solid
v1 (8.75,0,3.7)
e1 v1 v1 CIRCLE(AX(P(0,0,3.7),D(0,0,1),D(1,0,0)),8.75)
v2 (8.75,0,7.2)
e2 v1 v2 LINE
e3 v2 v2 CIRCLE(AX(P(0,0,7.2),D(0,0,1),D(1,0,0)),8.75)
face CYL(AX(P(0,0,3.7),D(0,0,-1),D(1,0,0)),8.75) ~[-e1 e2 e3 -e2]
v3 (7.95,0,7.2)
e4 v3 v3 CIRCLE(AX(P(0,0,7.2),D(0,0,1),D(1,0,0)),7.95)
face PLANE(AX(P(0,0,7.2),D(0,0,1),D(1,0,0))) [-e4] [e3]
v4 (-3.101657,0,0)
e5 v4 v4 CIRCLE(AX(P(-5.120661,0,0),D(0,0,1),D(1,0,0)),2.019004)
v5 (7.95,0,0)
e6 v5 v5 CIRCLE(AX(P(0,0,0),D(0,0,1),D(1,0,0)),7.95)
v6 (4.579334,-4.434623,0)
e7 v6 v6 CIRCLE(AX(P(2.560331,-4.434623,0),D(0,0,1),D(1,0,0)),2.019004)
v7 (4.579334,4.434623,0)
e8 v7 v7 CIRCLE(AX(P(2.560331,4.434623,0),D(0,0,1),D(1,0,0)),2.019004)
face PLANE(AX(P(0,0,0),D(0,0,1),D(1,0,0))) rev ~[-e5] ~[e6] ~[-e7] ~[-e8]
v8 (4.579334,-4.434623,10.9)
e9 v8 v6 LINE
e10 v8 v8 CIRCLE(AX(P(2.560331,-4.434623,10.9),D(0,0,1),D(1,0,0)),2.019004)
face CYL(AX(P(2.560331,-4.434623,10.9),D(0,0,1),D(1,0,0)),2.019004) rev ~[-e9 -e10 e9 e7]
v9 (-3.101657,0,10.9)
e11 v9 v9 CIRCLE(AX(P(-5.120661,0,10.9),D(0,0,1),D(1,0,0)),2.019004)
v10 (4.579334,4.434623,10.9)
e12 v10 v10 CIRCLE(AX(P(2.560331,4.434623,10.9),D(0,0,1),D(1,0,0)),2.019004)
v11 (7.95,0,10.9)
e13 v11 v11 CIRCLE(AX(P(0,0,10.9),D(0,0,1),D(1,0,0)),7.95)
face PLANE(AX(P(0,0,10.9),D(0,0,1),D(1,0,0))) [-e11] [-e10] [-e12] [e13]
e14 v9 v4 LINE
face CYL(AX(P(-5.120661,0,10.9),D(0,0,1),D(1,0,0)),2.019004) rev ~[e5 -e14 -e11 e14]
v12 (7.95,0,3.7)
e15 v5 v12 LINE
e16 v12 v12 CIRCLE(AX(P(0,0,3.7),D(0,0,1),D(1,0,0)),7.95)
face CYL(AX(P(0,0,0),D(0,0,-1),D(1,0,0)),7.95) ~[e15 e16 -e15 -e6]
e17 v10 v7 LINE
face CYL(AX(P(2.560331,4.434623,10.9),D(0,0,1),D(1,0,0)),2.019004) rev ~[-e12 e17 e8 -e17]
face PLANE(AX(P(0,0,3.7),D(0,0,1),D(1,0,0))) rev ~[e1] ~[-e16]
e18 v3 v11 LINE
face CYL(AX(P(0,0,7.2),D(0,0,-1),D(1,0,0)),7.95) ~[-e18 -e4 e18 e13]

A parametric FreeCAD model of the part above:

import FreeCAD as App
import Part
import Sketcher
Q = App.Units.Quantity

doc = App.newDocument("Part")
body = doc.addObject("PartDesign::Body", "Body")

# Sketch on XY plane
sketch1 = body.newObject("Sketcher::SketchObject", "Sketch")
sketch1.AttachmentSupport = (doc.getObject("XY_Plane"), [""])
sketch1.MapMode = "FlatFace"
sketch1.addGeometry(Part.Circle(App.Vector(0, 0, 0), App.Vector(0, 0, 1), 8), False)
sketch1.addConstraint([
    Sketcher.Constraint("Coincident", 0, 3, -1, 1),
    Sketcher.Constraint("Diameter", 0, Q("15.9 mm")),
])
pad1 = body.newObject("PartDesign::Pad", "Pad")
pad1.Profile = sketch1
pad1.Length = 3.7

# Sketch on XY plane
sketch2 = body.newObject("Sketcher::SketchObject", "Sketch001")
sketch2.AttachmentSupport = (doc.getObject("XY_Plane"), [""])
sketch2.MapMode = "FlatFace"
sketch2.AttachmentOffset = App.Placement(App.Vector(0, 0, 3.7), App.Rotation())
sketch2.addGeometry(Part.Circle(App.Vector(0, 0, 0), App.Vector(0, 0, 1), 9), False)
sketch2.addConstraint([
    Sketcher.Constraint("Coincident", 0, 3, -1, 1),
    Sketcher.Constraint("Diameter", 0, Q("17.5 mm")),
])
pad2 = body.newObject("PartDesign::Pad", "Pad001")
pad2.Profile = sketch2
pad2.Length = 3.5

# Sketch on XY plane
sketch3 = body.newObject("Sketcher::SketchObject", "Sketch002")
sketch3.AttachmentSupport = (doc.getObject("XY_Plane"), [""])
sketch3.MapMode = "FlatFace"
sketch3.AttachmentOffset = App.Placement(App.Vector(0, 0, 7.2), App.Rotation())
sketch3.addGeometry(Part.Circle(App.Vector(0, 0, 0), App.Vector(0, 0, 1), 8), False)
sketch3.addConstraint([
    Sketcher.Constraint("Coincident", 0, 3, -1, 1),
    Sketcher.Constraint("Diameter", 0, Q("15.9 mm")),
])
pad3 = body.newObject("PartDesign::Pad", "Pad002")
pad3.Profile = sketch3
pad3.Length = 3.7

# Sketch on XY plane
sketch4 = body.newObject("Sketcher::SketchObject", "Sketch003")
sketch4.AttachmentSupport = (doc.getObject("XY_Plane"), [""])
sketch4.MapMode = "FlatFace"
sketch4.AttachmentOffset = App.Placement(App.Vector(0, 0, 10.9), App.Rotation())
sketch4.addGeometry([
    Part.Circle(App.Vector(-5.1, 0, 0), App.Vector(0, 0, 1), 2),
    Part.Circle(App.Vector(2.6, -4.4, 0), App.Vector(0, 0, 1), 2),
    Part.Circle(App.Vector(2.6, 4.4, 0), App.Vector(0, 0, 1), 2),
], False)
sketch4.addConstraint([
    Sketcher.Constraint("Equal", 0, 1),
    Sketcher.Constraint("Equal", 1, 2),
    Sketcher.Constraint("Symmetric", 1, 3, 2, 3, -1),
    Sketcher.Constraint("PointOnObject", 0, 3, -1),
    Sketcher.Constraint("Diameter", 0, Q("4.038007 mm")),
    Sketcher.Constraint("DistanceX", 0, 3, -1, 1, Q("5.120661 mm")),
    Sketcher.Constraint("DistanceX", -1, 1, 1, 3, Q("2.560331 mm")),
    Sketcher.Constraint("DistanceY", 1, 3, -1, 1, Q("4.434623 mm")),
])
pocket1 = body.newObject("PartDesign::Pocket", "Pocket")
pocket1.Profile = sketch4
pocket1.Type = "ThroughAll"

doc.recompute()
